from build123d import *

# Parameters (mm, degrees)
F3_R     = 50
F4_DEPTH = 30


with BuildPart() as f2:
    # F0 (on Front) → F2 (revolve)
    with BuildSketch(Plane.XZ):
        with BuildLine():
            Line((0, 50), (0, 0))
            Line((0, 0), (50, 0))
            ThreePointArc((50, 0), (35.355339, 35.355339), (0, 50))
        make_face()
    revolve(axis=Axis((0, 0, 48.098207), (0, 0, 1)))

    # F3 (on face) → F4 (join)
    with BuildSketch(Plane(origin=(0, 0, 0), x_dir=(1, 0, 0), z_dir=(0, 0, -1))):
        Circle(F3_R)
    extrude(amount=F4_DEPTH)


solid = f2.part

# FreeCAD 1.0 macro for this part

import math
import FreeCAD as App
import Part
import Sketcher

doc = App.newDocument("Part")
body = doc.addObject("PartDesign::Body", "Body")

# Sketch on XZ plane
sketch1 = body.newObject("Sketcher::SketchObject", "Sketch")
sketch1.AttachmentSupport = (doc.getObject("XZ_Plane"), [""])
sketch1.MapMode = "FlatFace"
sketch1.addGeometry([
    Part.LineSegment(App.Vector(0, 50, 0), App.Vector(0, 0, 0)),
    Part.LineSegment(App.Vector(0, 0, 0), App.Vector(50, 0, 0)),
    Part.ArcOfCircle(Part.Circle(App.Vector(0, 0, 0), App.Vector(0, 0, 1), 50), math.radians(0), math.radians(90)),
], False)
sketch1.addConstraint([
    Sketcher.Constraint("Coincident", 0, 2, 1, 1),
    Sketcher.Constraint("Coincident", 1, 2, 2, 1),
    Sketcher.Constraint("Coincident", 2, 2, 0, 1),
    Sketcher.Constraint("Vertical", 0),
    Sketcher.Constraint("Horizontal", 1),
    Sketcher.Constraint("Coincident", 2, 3, -1, 1),
    Sketcher.Constraint("Coincident", 0, 2, -1, 1),
    Sketcher.Constraint("Radius", 2, 50.0),
])
revolution = body.newObject("PartDesign::Revolution", "Revolution")
revolution.Profile = sketch1
revolution.ReferenceAxis = (sketch1, ["V_Axis"])
revolution.Angle = 360

# Sketch on XY plane
sketch2 = body.newObject("Sketcher::SketchObject", "Sketch001")
sketch2.AttachmentSupport = (doc.getObject("XY_Plane"), [""])
sketch2.MapMode = "FlatFace"
sketch2.addGeometry(Part.Circle(App.Vector(0, 0, 0), App.Vector(0, 0, 1), 50), False)
sketch2.addConstraint([
    Sketcher.Constraint("Coincident", 0, 3, -1, 1),
    Sketcher.Constraint("Diameter", 0, 100.0),
])
pad1 = body.newObject("PartDesign::Pad", "Pad")
pad1.Profile = sketch2
pad1.Length = 30
pad1.Reversed = True

doc.recompute()
